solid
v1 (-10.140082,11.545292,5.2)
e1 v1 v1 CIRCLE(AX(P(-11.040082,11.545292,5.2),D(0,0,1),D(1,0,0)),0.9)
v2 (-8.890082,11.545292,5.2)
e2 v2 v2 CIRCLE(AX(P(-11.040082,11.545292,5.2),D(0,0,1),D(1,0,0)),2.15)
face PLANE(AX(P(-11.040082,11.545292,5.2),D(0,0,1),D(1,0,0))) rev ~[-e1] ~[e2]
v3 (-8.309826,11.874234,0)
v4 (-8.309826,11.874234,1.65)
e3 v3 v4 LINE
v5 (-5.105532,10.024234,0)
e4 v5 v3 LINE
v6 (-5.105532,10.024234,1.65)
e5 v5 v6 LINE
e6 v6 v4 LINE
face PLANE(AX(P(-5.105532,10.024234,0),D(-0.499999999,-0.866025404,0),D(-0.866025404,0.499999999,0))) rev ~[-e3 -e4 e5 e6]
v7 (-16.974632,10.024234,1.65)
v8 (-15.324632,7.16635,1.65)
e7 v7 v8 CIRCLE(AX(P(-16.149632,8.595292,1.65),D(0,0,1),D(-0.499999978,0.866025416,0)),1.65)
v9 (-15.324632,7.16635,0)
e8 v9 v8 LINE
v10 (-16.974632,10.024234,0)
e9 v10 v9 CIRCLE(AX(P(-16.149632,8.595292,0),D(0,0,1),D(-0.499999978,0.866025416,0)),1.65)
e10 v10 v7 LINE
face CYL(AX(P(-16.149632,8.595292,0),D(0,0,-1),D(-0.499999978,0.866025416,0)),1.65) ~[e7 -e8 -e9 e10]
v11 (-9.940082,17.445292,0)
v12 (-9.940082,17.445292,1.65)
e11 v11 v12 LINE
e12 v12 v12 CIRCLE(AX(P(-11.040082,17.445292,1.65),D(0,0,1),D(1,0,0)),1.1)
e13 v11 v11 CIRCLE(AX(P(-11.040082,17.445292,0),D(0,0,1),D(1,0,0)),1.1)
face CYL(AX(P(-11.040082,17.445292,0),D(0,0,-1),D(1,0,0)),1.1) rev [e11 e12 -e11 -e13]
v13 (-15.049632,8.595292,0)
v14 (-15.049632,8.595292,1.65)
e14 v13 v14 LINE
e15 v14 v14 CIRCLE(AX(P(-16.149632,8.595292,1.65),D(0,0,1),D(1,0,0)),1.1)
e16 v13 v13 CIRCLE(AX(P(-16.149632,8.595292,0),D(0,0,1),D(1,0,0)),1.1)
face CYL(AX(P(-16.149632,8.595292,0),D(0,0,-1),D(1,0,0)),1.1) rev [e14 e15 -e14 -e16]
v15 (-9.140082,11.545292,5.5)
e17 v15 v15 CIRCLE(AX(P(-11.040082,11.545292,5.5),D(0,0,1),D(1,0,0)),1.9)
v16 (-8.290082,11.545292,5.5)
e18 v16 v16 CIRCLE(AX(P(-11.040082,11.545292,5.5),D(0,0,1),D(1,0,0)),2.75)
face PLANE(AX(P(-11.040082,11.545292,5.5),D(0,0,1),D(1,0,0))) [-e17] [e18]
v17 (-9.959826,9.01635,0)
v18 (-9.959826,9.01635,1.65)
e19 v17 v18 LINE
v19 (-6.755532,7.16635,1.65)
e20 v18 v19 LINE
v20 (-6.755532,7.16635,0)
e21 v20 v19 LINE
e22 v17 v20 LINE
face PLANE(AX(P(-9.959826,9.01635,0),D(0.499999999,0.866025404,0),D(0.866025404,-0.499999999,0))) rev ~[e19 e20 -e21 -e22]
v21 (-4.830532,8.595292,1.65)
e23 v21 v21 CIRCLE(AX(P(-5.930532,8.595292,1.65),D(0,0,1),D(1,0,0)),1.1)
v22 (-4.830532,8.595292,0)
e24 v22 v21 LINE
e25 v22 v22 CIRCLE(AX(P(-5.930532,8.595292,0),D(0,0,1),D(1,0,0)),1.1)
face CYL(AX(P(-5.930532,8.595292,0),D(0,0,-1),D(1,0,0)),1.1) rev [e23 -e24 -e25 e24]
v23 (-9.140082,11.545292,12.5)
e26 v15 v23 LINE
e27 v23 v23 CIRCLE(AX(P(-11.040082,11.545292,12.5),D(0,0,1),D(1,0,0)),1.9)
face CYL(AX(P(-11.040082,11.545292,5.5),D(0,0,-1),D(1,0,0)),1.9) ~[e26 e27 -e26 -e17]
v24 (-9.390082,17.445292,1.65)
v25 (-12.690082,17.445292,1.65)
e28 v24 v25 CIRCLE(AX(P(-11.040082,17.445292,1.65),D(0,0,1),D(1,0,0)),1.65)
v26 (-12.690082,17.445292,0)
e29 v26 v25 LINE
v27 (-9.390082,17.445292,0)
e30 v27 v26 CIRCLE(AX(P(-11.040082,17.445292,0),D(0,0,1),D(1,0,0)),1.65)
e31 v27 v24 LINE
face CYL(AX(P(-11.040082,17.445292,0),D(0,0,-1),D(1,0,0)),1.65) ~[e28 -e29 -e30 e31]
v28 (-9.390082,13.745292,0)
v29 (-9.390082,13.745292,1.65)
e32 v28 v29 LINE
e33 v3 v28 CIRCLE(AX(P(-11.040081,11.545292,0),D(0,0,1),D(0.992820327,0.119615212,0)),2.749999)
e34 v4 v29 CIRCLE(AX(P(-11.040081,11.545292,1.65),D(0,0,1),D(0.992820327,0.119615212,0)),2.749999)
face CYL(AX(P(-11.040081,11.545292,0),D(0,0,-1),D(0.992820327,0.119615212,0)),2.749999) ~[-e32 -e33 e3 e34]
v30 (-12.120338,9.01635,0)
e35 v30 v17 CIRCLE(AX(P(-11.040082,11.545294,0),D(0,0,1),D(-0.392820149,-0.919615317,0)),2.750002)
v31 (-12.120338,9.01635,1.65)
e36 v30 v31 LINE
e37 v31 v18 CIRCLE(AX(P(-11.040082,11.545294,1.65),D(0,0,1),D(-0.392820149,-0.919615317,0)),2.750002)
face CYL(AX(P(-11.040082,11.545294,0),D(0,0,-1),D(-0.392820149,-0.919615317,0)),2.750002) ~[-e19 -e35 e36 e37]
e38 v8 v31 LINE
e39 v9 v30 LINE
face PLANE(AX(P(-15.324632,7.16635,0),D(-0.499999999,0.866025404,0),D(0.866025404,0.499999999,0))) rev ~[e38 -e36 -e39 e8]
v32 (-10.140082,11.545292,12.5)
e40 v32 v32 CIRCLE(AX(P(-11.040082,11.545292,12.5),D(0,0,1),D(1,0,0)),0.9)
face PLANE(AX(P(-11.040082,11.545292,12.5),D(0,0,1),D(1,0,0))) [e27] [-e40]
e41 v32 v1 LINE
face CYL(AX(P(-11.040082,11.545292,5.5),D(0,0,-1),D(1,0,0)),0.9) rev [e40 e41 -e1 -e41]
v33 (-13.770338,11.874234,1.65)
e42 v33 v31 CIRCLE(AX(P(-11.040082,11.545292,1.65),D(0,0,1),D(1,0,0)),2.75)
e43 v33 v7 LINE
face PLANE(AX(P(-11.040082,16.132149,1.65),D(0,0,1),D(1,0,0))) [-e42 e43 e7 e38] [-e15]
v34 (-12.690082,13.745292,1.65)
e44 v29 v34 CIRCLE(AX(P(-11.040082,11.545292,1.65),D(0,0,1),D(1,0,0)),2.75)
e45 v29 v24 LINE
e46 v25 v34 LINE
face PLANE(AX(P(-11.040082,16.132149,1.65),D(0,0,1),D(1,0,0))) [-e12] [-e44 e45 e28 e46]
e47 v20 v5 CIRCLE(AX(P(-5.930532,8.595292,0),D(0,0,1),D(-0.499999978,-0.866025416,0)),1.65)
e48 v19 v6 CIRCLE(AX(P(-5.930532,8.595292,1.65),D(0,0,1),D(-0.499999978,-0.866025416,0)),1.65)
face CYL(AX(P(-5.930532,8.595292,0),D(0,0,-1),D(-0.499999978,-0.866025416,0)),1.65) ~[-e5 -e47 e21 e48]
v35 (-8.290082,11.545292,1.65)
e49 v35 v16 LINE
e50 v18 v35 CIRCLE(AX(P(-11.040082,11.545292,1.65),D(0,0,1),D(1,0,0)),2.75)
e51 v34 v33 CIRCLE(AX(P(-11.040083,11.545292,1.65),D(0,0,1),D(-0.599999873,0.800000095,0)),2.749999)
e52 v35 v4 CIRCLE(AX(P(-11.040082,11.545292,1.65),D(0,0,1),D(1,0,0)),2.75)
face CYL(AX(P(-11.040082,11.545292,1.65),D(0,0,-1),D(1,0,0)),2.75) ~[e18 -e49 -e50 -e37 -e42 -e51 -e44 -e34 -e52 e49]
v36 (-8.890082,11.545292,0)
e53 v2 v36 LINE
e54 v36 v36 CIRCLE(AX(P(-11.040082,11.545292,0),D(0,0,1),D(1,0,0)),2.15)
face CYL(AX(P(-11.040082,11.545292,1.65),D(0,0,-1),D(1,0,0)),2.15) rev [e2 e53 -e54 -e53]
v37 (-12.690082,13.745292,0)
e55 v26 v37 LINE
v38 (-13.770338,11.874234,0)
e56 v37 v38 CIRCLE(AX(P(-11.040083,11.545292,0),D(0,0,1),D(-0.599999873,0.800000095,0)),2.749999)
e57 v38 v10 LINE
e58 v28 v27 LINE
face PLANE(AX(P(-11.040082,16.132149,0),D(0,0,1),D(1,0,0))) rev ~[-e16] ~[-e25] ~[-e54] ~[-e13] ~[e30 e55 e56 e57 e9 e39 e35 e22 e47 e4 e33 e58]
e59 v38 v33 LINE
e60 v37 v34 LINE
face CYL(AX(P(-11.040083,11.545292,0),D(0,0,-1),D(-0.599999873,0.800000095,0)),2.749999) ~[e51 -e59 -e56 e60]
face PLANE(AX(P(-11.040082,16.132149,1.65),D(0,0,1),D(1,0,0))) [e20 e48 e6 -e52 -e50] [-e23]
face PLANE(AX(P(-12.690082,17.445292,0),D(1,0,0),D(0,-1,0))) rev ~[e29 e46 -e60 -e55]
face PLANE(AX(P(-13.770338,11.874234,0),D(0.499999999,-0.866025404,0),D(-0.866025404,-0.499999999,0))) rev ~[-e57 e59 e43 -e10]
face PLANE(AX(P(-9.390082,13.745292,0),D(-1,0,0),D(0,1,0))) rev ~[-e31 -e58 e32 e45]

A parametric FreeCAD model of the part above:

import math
import FreeCAD as App
import Part
import Sketcher

V = App.Vector
Q = App.Units.Quantity

doc = App.newDocument("Part")
body = doc.addObject("PartDesign::Body", "Body")

# Sketch on XY plane
sketch1 = doc.addObject("Sketcher::SketchObject", "Sketch")
body.addObject(sketch1)
sketch1.AttachmentSupport = (doc.XY_Plane, [""])
sketch1.MapMode = "FlatFace"
sketch1.addGeometry(Part.LineSegment(V(-12.690082, 17.445292, 0), V(-12.690082, 13.745292, 0)), False)
sketch1.addGeometry(Part.ArcOfCircle(Part.Circle(V(-11.040083, 11.545292, 0), V(0, 0, 1), 2.749999), math.radians(126.869889), math.radians(173.130104)), False)
sketch1.addGeometry(Part.LineSegment(V(-13.770338, 11.874234, 0), V(-16.974632, 10.024234, 0)), False)
sketch1.addGeometry(Part.ArcOfCircle(Part.Circle(V(-16.149632, 8.595292, 0), V(0, 0, 1), 1.65), math.radians(119.999999), math.radians(299.999999)), False)
sketch1.addGeometry(Part.LineSegment(V(-15.324632, 7.16635, 0), V(-12.120338, 9.01635, 0)), False)
sketch1.addGeometry(Part.ArcOfCircle(Part.Circle(V(-11.040082, 11.545294, 0), V(0, 0, 1), 2.750002), math.radians(-113.130091), math.radians(-66.869909)), False)
sketch1.addGeometry(Part.LineSegment(V(-9.959826, 9.01635, 0), V(-6.755532, 7.16635, 0)), False)
sketch1.addGeometry(Part.ArcOfCircle(Part.Circle(V(-5.930532, 8.595292, 0), V(0, 0, 1), 1.65), math.radians(-119.999999), math.radians(60.000001)), False)
sketch1.addGeometry(Part.LineSegment(V(-5.105532, 10.024234, 0), V(-8.309826, 11.874234, 0)), False)
sketch1.addGeometry(Part.ArcOfCircle(Part.Circle(V(-11.040081, 11.545292, 0), V(0, 0, 1), 2.749999), math.radians(6.869896), math.radians(53.130111)), False)
sketch1.addGeometry(Part.LineSegment(V(-9.390082, 13.745292, 0), V(-9.390082, 17.445292, 0)), False)
sketch1.addGeometry(Part.ArcOfCircle(Part.Circle(V(-11.040082, 17.445292, 0), V(0, 0, 1), 1.65), math.radians(0), math.radians(180)), False)
sketch1.addGeometry(Part.Circle(V(-16.149632, 8.595292, 0), V(0, 0, 1), 1.1), False)
sketch1.addGeometry(Part.Circle(V(-5.930532, 8.595292, 0), V(0, 0, 1), 1.1), False)
sketch1.addGeometry(Part.Circle(V(-11.040082, 11.545292, 0), V(0, 0, 1), 2.15), False)
sketch1.addGeometry(Part.Circle(V(-11.040082, 17.445292, 0), V(0, 0, 1), 1.1), False)
sketch1.addConstraint(Sketcher.Constraint("Coincident", 0, 2, 1, 1))
sketch1.addConstraint(Sketcher.Constraint("Coincident", 1, 2, 2, 1))
sketch1.addConstraint(Sketcher.Constraint("Tangent", 2, 2, 3, 1))
sketch1.addConstraint(Sketcher.Constraint("Tangent", 3, 2, 4, 1))
sketch1.addConstraint(Sketcher.Constraint("Coincident", 4, 2, 5, 1))
sketch1.addConstraint(Sketcher.Constraint("Coincident", 5, 2, 6, 1))
sketch1.addConstraint(Sketcher.Constraint("Tangent", 6, 2, 7, 1))
sketch1.addConstraint(Sketcher.Constraint("Tangent", 7, 2, 8, 1))
sketch1.addConstraint(Sketcher.Constraint("Coincident", 8, 2, 9, 1))
sketch1.addConstraint(Sketcher.Constraint("Coincident", 9, 2, 10, 1))
sketch1.addConstraint(Sketcher.Constraint("Tangent", 10, 2, 11, 1))
sketch1.addConstraint(Sketcher.Constraint("Tangent", 11, 2, 0, 1))
sketch1.addConstraint(Sketcher.Constraint("Vertical", 0))
sketch1.addConstraint(Sketcher.Constraint("Vertical", 10))
sketch1.addConstraint(Sketcher.Constraint("Coincident", 5, 3, 1, 3))
sketch1.addConstraint(Sketcher.Constraint("Coincident", 9, 3, 1, 3))
sketch1.addConstraint(Sketcher.Constraint("Coincident", 12, 3, 3, 3))
sketch1.addConstraint(Sketcher.Constraint("Coincident", 13, 3, 7, 3))
sketch1.addConstraint(Sketcher.Constraint("Coincident", 14, 3, 1, 3))
sketch1.addConstraint(Sketcher.Constraint("Coincident", 15, 3, 11, 3))
sketch1.addConstraint(Sketcher.Constraint("Equal", 3, 7))
sketch1.addConstraint(Sketcher.Constraint("Equal", 1, 9))
sketch1.addConstraint(Sketcher.Constraint("Equal", 7, 11))
sketch1.addConstraint(Sketcher.Constraint("Equal", 12, 13))
sketch1.addConstraint(Sketcher.Constraint("Equal", 13, 15))
sketch1.addConstraint(Sketcher.Constraint("Parallel", 2, 4))
sketch1.addConstraint(Sketcher.Constraint("Parallel", 6, 8))
sketch1.addConstraint(Sketcher.Constraint("Horizontal", 3, 3, 7, 3))
sketch1.addConstraint(Sketcher.Constraint("Horizontal", 4, 2, 5, 2))
sketch1.addConstraint(Sketcher.Constraint("Horizontal", 3, 2, 6, 2))
sketch1.addConstraint(Sketcher.Constraint("Horizontal", 0, 2, 9, 2))
sketch1.addConstraint(Sketcher.Constraint("Equal", 2, 4))
sketch1.addConstraint(Sketcher.Constraint("Diameter", 12, Q("2.2 mm")))
sketch1.addConstraint(Sketcher.Constraint("Diameter", 14, Q("4.3 mm")))
sketch1.addConstraint(Sketcher.Constraint("Angle", 2, Q("-150 deg")))
sketch1.addConstraint(Sketcher.Constraint("Radius", 1, Q("2.749999 mm")))
sketch1.addConstraint(Sketcher.Constraint("Radius", 3, Q("1.65 mm")))
sketch1.addConstraint(Sketcher.Constraint("Radius", 5, Q("2.750002 mm")))
sketch1.addConstraint(Sketcher.Constraint("DistanceY", 0, 2, 0, 1, Q("3.7 mm")))
sketch1.addConstraint(Sketcher.Constraint("Distance", 2, Q("3.7 mm")))
sketch1.addConstraint(Sketcher.Constraint("DistanceX", 9, 3, -1, 1, Q("11.040081 mm")))
sketch1.addConstraint(Sketcher.Constraint("DistanceY", -1, 1, 11, 3, Q("17.445292 mm")))
pad1 = doc.addObject("PartDesign::Pad", "Pad")
body.addObject(pad1)
pad1.Profile = sketch1
pad1.Length = 1.65

# Sketch on XY plane
sketch2 = doc.addObject("Sketcher::SketchObject", "Sketch001")
body.addObject(sketch2)
sketch2.AttachmentSupport = (doc.XY_Plane, [""])
sketch2.MapMode = "FlatFace"
sketch2.AttachmentOffset = App.Placement(V(0, 0, 1.65), App.Rotation())
sketch2.addGeometry(Part.Circle(V(-11.040082, 11.545292, 0), V(0, 0, 1), 2.75), False)
sketch2.addGeometry(Part.Circle(V(-11.040082, 11.545292, 0), V(0, 0, 1), 2.15), False)
sketch2.addConstraint(Sketcher.Constraint("Coincident", 1, 3, 0, 3))
sketch2.addConstraint(Sketcher.Constraint("Diameter", 0, Q("5.5 mm")))
sketch2.addConstraint(Sketcher.Constraint("Diameter", 1, Q("4.3 mm")))
sketch2.addConstraint(Sketcher.Constraint("DistanceX", 0, 3, -1, 1, Q("11.040082 mm")))
sketch2.addConstraint(Sketcher.Constraint("DistanceY", -1, 1, 0, 3, Q("11.545292 mm")))
pad2 = doc.addObject("PartDesign::Pad", "Pad001")
body.addObject(pad2)
pad2.Profile = sketch2
pad2.Length = 3.85

# Sketch on XY plane
sketch3 = doc.addObject("Sketcher::SketchObject", "Sketch002")
body.addObject(sketch3)
sketch3.AttachmentSupport = (doc.XY_Plane, [""])
sketch3.MapMode = "FlatFace"
sketch3.AttachmentOffset = App.Placement(V(0, 0, 5.5), App.Rotation())
sketch3.addGeometry(Part.Circle(V(-11.040082, 11.545292, 0), V(0, 0, 1), 2.15), False)
sketch3.addGeometry(Part.Circle(V(-11.040082, 11.545292, 0), V(0, 0, 1), 0.9), False)
sketch3.addConstraint(Sketcher.Constraint("Coincident", 1, 3, 0, 3))
sketch3.addConstraint(Sketcher.Constraint("Diameter", 0, Q("4.3 mm")))
sketch3.addConstraint(Sketcher.Constraint("Diameter", 1, Q("1.8 mm")))
sketch3.addConstraint(Sketcher.Constraint("DistanceX", 0, 3, -1, 1, Q("11.040082 mm")))
sketch3.addConstraint(Sketcher.Constraint("DistanceY", -1, 1, 0, 3, Q("11.545292 mm")))
pad3 = doc.addObject("PartDesign::Pad", "Pad002")
body.addObject(pad3)
pad3.Profile = sketch3
pad3.Length = 0.3
pad3.Reversed = True

# Sketch on XY plane
sketch4 = doc.addObject("Sketcher::SketchObject", "Sketch003")
body.addObject(sketch4)
sketch4.AttachmentSupport = (doc.XY_Plane, [""])
sketch4.MapMode = "FlatFace"
sketch4.AttachmentOffset = App.Placement(V(0, 0, 5.5), App.Rotation())
sketch4.addGeometry(Part.Circle(V(-11.040082, 11.545292, 0), V(0, 0, 1), 1.9), False)
sketch4.addGeometry(Part.Circle(V(-11.040082, 11.545292, 0), V(0, 0, 1), 0.9), False)
sketch4.addConstraint(Sketcher.Constraint("Coincident", 1, 3, 0, 3))
sketch4.addConstraint(Sketcher.Constraint("Diameter", 0, Q("3.8 mm")))
sketch4.addConstraint(Sketcher.Constraint("Diameter", 1, Q("1.8 mm")))
sketch4.addConstraint(Sketcher.Constraint("DistanceX", 0, 3, -1, 1, Q("11.040082 mm")))
sketch4.addConstraint(Sketcher.Constraint("DistanceY", -1, 1, 0, 3, Q("11.545292 mm")))
pad4 = doc.addObject("PartDesign::Pad", "Pad003")
body.addObject(pad4)
pad4.Profile = sketch4
pad4.Length = 7

doc.recompute()
